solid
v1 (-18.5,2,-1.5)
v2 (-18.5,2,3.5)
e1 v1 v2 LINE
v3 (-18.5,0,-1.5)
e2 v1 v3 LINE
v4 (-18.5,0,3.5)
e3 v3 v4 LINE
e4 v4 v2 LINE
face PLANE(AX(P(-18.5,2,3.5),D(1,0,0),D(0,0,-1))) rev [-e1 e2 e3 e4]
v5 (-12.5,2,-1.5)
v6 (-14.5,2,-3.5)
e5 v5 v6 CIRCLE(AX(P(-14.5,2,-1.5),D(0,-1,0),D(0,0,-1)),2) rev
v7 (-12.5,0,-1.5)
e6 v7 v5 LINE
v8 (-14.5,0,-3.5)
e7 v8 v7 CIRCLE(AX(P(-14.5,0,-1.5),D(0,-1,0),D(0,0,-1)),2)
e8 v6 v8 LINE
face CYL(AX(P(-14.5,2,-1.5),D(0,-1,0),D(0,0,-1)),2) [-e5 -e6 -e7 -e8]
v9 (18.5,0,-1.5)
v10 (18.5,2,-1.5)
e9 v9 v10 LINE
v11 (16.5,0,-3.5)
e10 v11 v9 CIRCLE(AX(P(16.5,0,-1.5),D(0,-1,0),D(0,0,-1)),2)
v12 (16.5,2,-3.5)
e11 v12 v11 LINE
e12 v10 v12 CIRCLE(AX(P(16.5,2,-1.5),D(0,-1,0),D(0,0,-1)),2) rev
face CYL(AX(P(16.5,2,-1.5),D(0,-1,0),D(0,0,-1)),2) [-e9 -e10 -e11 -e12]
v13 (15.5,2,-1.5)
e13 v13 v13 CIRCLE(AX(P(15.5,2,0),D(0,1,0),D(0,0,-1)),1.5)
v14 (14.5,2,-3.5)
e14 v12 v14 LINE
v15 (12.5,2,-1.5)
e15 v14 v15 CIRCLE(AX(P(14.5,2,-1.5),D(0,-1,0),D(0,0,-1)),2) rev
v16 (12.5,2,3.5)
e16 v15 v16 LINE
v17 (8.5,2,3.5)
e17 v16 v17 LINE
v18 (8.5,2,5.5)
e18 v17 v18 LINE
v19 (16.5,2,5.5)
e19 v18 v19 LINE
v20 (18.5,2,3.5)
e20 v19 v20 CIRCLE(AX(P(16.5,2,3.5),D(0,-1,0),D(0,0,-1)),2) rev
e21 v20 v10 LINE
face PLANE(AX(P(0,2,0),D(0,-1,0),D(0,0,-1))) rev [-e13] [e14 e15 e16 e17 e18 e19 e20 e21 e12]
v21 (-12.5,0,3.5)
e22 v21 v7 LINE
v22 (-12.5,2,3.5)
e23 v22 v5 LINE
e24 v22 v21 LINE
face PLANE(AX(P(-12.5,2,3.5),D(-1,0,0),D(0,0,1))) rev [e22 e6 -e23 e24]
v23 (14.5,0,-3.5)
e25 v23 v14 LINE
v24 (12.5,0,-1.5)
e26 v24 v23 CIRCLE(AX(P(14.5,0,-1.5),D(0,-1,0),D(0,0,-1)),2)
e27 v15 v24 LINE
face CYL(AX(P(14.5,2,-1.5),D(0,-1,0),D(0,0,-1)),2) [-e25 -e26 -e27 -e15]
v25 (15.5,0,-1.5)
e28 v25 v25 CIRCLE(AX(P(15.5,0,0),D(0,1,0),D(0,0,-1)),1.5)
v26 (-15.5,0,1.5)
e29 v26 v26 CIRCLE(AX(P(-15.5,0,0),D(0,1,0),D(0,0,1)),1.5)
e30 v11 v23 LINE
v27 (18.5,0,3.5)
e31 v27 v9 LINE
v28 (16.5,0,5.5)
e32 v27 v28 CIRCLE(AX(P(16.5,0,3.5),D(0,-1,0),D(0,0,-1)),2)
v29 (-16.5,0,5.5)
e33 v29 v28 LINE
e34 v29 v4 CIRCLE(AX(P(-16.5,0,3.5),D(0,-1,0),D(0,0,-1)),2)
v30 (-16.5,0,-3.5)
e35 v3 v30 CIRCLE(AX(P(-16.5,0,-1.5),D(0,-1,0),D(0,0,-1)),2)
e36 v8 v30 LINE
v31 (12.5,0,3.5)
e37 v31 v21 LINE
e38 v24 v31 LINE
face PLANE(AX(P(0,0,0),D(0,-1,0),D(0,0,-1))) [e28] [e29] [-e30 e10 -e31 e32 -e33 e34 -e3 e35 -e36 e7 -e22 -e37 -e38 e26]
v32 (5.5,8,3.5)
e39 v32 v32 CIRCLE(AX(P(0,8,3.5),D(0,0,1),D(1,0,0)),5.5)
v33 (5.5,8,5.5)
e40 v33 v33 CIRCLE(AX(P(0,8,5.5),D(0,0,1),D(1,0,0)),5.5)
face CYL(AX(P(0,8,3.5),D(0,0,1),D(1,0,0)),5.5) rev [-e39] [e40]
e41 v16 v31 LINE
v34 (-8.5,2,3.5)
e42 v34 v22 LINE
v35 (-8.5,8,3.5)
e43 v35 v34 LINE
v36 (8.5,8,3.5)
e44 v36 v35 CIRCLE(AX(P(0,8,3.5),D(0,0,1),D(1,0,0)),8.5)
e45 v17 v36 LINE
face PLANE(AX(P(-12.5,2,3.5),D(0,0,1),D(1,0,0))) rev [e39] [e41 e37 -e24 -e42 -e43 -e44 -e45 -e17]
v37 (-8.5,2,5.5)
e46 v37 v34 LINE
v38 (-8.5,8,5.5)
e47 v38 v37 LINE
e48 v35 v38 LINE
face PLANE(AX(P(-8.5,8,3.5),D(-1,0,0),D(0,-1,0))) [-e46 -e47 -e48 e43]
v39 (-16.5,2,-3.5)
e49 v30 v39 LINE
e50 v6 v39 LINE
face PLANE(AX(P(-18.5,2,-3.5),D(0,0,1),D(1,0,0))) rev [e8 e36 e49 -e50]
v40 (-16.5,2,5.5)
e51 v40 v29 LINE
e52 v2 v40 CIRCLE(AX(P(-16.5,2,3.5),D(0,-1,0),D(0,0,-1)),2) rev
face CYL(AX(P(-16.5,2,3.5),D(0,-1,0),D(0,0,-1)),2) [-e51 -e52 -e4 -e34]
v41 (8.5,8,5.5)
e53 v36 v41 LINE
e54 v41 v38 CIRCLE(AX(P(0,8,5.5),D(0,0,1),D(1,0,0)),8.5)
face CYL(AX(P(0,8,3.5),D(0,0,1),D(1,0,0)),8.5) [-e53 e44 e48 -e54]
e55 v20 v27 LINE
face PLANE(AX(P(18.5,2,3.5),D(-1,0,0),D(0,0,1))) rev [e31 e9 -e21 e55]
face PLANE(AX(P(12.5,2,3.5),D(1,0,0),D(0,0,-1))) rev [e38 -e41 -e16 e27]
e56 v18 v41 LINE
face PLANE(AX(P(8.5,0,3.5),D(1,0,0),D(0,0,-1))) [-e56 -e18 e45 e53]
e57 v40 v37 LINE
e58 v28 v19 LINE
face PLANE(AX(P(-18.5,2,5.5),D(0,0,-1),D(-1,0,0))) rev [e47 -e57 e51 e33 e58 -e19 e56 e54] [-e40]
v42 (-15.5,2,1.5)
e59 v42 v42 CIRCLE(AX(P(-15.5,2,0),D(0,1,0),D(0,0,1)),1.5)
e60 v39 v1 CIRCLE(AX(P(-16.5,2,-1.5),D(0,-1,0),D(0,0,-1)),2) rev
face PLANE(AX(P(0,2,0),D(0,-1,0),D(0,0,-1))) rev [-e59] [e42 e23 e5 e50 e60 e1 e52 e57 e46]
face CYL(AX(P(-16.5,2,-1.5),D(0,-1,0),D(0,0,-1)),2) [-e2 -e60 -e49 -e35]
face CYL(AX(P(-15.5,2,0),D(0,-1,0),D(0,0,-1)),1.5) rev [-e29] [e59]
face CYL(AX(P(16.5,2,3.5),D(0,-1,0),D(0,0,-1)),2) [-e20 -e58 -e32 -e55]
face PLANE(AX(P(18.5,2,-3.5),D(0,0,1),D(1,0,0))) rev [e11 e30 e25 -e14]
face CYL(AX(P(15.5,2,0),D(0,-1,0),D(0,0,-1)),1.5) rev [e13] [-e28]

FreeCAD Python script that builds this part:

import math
import FreeCAD as App
import Part
import Sketcher
Q = App.Units.Quantity


def edges_at(feature, points):
    """Names of the edges that pass closest to the given points."""
    edges = feature.Shape.Edges
    near = lambda p: min(range(len(edges)), key=lambda i: edges[i].distToShape(Part.Vertex(*p))[0])
    return sorted({f"Edge{near(p) + 1}" for p in points})

doc = App.newDocument("Part")
body = doc.addObject("PartDesign::Body", "Body")

# Sketch on XZ plane
sketch1 = body.newObject("Sketcher::SketchObject", "Sketch")
sketch1.AttachmentSupport = (doc.getObject("XZ_Plane"), [""])
sketch1.MapMode = "FlatFace"
sketch1.addGeometry([
    Part.LineSegment(App.Vector(12.5, 3.5, 0), App.Vector(-12.5, 3.5, 0)),  # 0
    Part.LineSegment(App.Vector(-12.5, 3.5, 0), App.Vector(-12.5, -3.5, 0)),  # 1
    Part.LineSegment(App.Vector(-12.5, -3.5, 0), App.Vector(-18.5, -3.5, 0)),  # 2
    Part.LineSegment(App.Vector(-18.5, -3.5, 0), App.Vector(-18.5, 5.5, 0)),  # 3
    Part.LineSegment(App.Vector(-18.5, 5.5, 0), App.Vector(18.5, 5.5, 0)),  # 4
    Part.LineSegment(App.Vector(18.5, 5.5, 0), App.Vector(18.5, -3.5, 0)),  # 5
    Part.LineSegment(App.Vector(18.5, -3.5, 0), App.Vector(12.5, -3.5, 0)),  # 6
    Part.LineSegment(App.Vector(12.5, -3.5, 0), App.Vector(12.5, 3.5, 0)),  # 7
    Part.Circle(App.Vector(15.5, 0, 0), App.Vector(0, 0, 1), 1.5),  # 8
    Part.Circle(App.Vector(-15.5, 0, 0), App.Vector(0, 0, 1), 1.5),  # 9
], False)
sketch1.addConstraint([
    Sketcher.Constraint("Coincident", 0, 2, 1, 1),
    Sketcher.Constraint("Coincident", 1, 2, 2, 1),
    Sketcher.Constraint("Coincident", 2, 2, 3, 1),
    Sketcher.Constraint("Coincident", 3, 2, 4, 1),
    Sketcher.Constraint("Coincident", 4, 2, 5, 1),
    Sketcher.Constraint("Coincident", 5, 2, 6, 1),
    Sketcher.Constraint("Coincident", 6, 2, 7, 1),
    Sketcher.Constraint("Coincident", 7, 2, 0, 1),
    Sketcher.Constraint("Horizontal", 0),
    Sketcher.Constraint("Vertical", 1),
    Sketcher.Constraint("Horizontal", 2),
    Sketcher.Constraint("Vertical", 3),
    Sketcher.Constraint("Horizontal", 4),
    Sketcher.Constraint("Vertical", 5),
    Sketcher.Constraint("Horizontal", 6),
    Sketcher.Constraint("Vertical", 7),
    Sketcher.Constraint("Equal", 8, 9),
    Sketcher.Constraint("Symmetric", 8, 3, 9, 3, -1, 1),
    Sketcher.Constraint("Symmetric", 0, 2, 6, 2, -1, 1),
    Sketcher.Constraint("Symmetric", 2, 2, 5, 2, -2),
    Sketcher.Constraint("PointOnObject", 8, 3, -1),
    Sketcher.Constraint("Diameter", 8, Q("3 mm")),
    Sketcher.Constraint("DistanceX", 0, 2, 0, 1, Q("25 mm")),
    Sketcher.Constraint("DistanceX", 2, 2, 2, 1, Q("6 mm")),
    Sketcher.Constraint("DistanceY", 1, 2, 1, 1, Q("7 mm")),
    Sketcher.Constraint("DistanceY", 3, 1, 3, 2, Q("9 mm")),
    Sketcher.Constraint("DistanceX", 9, 3, 8, 3, Q("31 mm")),
])
pad1 = body.newObject("PartDesign::Pad", "Pad")
pad1.Profile = sketch1
pad1.Length = 2
pad1.Reversed = True

# Sketch on XY plane
sketch2 = body.newObject("Sketcher::SketchObject", "Sketch001")
sketch2.AttachmentSupport = (doc.getObject("XY_Plane"), [""])
sketch2.MapMode = "FlatFace"
sketch2.AttachmentOffset = App.Placement(App.Vector(0, 0, 5.5), App.Rotation())
sketch2.addGeometry([
    Part.LineSegment(App.Vector(-8.5, 8, 0), App.Vector(-8.5, 0, 0)),  # 0
    Part.LineSegment(App.Vector(-8.5, 0, 0), App.Vector(8.5, 0, 0)),  # 1
    Part.LineSegment(App.Vector(8.5, 0, 0), App.Vector(8.5, 8, 0)),  # 2
    Part.ArcOfCircle(Part.Circle(App.Vector(0, 8, 0), App.Vector(0, 0, 1), 8.5), math.radians(0), math.radians(180)),  # 3
    Part.Circle(App.Vector(0, 8, 0), App.Vector(0, 0, 1), 5.5),  # 4
], False)
sketch2.addConstraint([
    Sketcher.Constraint("Coincident", 0, 2, 1, 1),
    Sketcher.Constraint("Coincident", 1, 2, 2, 1),
    Sketcher.Constraint("Tangent", 2, 2, 3, 1),
    Sketcher.Constraint("Tangent", 3, 2, 0, 1),
    Sketcher.Constraint("Vertical", 0),
    Sketcher.Constraint("Horizontal", 1),
    Sketcher.Constraint("Vertical", 2),
    Sketcher.Constraint("Coincident", 4, 3, 3, 3),
    Sketcher.Constraint("Symmetric", 0, 2, 1, 2, -1, 1),
    Sketcher.Constraint("Diameter", 4, Q("11 mm")),
    Sketcher.Constraint("Radius", 3, Q("8.5 mm")),
    Sketcher.Constraint("DistanceY", 0, 2, 0, 1, Q("8 mm")),
])
pad2 = body.newObject("PartDesign::Pad", "Pad001")
pad2.Profile = sketch2
pad2.Length = 2
pad2.Reversed = True
doc.recompute()

fillet = body.newObject("PartDesign::Fillet", "Fillet")
fillet.Base = (pad2, edges_at(pad2, [
    (12.5, 1, -3.5),
    (18.5, 1, -3.5),
    (18.5, 1, 5.5),
    (-18.5, 1, 5.5),
    (-18.5, 1, -3.5),
    (-12.5, 1, -3.5),
]))
fillet.Radius = 2

doc.recompute()
